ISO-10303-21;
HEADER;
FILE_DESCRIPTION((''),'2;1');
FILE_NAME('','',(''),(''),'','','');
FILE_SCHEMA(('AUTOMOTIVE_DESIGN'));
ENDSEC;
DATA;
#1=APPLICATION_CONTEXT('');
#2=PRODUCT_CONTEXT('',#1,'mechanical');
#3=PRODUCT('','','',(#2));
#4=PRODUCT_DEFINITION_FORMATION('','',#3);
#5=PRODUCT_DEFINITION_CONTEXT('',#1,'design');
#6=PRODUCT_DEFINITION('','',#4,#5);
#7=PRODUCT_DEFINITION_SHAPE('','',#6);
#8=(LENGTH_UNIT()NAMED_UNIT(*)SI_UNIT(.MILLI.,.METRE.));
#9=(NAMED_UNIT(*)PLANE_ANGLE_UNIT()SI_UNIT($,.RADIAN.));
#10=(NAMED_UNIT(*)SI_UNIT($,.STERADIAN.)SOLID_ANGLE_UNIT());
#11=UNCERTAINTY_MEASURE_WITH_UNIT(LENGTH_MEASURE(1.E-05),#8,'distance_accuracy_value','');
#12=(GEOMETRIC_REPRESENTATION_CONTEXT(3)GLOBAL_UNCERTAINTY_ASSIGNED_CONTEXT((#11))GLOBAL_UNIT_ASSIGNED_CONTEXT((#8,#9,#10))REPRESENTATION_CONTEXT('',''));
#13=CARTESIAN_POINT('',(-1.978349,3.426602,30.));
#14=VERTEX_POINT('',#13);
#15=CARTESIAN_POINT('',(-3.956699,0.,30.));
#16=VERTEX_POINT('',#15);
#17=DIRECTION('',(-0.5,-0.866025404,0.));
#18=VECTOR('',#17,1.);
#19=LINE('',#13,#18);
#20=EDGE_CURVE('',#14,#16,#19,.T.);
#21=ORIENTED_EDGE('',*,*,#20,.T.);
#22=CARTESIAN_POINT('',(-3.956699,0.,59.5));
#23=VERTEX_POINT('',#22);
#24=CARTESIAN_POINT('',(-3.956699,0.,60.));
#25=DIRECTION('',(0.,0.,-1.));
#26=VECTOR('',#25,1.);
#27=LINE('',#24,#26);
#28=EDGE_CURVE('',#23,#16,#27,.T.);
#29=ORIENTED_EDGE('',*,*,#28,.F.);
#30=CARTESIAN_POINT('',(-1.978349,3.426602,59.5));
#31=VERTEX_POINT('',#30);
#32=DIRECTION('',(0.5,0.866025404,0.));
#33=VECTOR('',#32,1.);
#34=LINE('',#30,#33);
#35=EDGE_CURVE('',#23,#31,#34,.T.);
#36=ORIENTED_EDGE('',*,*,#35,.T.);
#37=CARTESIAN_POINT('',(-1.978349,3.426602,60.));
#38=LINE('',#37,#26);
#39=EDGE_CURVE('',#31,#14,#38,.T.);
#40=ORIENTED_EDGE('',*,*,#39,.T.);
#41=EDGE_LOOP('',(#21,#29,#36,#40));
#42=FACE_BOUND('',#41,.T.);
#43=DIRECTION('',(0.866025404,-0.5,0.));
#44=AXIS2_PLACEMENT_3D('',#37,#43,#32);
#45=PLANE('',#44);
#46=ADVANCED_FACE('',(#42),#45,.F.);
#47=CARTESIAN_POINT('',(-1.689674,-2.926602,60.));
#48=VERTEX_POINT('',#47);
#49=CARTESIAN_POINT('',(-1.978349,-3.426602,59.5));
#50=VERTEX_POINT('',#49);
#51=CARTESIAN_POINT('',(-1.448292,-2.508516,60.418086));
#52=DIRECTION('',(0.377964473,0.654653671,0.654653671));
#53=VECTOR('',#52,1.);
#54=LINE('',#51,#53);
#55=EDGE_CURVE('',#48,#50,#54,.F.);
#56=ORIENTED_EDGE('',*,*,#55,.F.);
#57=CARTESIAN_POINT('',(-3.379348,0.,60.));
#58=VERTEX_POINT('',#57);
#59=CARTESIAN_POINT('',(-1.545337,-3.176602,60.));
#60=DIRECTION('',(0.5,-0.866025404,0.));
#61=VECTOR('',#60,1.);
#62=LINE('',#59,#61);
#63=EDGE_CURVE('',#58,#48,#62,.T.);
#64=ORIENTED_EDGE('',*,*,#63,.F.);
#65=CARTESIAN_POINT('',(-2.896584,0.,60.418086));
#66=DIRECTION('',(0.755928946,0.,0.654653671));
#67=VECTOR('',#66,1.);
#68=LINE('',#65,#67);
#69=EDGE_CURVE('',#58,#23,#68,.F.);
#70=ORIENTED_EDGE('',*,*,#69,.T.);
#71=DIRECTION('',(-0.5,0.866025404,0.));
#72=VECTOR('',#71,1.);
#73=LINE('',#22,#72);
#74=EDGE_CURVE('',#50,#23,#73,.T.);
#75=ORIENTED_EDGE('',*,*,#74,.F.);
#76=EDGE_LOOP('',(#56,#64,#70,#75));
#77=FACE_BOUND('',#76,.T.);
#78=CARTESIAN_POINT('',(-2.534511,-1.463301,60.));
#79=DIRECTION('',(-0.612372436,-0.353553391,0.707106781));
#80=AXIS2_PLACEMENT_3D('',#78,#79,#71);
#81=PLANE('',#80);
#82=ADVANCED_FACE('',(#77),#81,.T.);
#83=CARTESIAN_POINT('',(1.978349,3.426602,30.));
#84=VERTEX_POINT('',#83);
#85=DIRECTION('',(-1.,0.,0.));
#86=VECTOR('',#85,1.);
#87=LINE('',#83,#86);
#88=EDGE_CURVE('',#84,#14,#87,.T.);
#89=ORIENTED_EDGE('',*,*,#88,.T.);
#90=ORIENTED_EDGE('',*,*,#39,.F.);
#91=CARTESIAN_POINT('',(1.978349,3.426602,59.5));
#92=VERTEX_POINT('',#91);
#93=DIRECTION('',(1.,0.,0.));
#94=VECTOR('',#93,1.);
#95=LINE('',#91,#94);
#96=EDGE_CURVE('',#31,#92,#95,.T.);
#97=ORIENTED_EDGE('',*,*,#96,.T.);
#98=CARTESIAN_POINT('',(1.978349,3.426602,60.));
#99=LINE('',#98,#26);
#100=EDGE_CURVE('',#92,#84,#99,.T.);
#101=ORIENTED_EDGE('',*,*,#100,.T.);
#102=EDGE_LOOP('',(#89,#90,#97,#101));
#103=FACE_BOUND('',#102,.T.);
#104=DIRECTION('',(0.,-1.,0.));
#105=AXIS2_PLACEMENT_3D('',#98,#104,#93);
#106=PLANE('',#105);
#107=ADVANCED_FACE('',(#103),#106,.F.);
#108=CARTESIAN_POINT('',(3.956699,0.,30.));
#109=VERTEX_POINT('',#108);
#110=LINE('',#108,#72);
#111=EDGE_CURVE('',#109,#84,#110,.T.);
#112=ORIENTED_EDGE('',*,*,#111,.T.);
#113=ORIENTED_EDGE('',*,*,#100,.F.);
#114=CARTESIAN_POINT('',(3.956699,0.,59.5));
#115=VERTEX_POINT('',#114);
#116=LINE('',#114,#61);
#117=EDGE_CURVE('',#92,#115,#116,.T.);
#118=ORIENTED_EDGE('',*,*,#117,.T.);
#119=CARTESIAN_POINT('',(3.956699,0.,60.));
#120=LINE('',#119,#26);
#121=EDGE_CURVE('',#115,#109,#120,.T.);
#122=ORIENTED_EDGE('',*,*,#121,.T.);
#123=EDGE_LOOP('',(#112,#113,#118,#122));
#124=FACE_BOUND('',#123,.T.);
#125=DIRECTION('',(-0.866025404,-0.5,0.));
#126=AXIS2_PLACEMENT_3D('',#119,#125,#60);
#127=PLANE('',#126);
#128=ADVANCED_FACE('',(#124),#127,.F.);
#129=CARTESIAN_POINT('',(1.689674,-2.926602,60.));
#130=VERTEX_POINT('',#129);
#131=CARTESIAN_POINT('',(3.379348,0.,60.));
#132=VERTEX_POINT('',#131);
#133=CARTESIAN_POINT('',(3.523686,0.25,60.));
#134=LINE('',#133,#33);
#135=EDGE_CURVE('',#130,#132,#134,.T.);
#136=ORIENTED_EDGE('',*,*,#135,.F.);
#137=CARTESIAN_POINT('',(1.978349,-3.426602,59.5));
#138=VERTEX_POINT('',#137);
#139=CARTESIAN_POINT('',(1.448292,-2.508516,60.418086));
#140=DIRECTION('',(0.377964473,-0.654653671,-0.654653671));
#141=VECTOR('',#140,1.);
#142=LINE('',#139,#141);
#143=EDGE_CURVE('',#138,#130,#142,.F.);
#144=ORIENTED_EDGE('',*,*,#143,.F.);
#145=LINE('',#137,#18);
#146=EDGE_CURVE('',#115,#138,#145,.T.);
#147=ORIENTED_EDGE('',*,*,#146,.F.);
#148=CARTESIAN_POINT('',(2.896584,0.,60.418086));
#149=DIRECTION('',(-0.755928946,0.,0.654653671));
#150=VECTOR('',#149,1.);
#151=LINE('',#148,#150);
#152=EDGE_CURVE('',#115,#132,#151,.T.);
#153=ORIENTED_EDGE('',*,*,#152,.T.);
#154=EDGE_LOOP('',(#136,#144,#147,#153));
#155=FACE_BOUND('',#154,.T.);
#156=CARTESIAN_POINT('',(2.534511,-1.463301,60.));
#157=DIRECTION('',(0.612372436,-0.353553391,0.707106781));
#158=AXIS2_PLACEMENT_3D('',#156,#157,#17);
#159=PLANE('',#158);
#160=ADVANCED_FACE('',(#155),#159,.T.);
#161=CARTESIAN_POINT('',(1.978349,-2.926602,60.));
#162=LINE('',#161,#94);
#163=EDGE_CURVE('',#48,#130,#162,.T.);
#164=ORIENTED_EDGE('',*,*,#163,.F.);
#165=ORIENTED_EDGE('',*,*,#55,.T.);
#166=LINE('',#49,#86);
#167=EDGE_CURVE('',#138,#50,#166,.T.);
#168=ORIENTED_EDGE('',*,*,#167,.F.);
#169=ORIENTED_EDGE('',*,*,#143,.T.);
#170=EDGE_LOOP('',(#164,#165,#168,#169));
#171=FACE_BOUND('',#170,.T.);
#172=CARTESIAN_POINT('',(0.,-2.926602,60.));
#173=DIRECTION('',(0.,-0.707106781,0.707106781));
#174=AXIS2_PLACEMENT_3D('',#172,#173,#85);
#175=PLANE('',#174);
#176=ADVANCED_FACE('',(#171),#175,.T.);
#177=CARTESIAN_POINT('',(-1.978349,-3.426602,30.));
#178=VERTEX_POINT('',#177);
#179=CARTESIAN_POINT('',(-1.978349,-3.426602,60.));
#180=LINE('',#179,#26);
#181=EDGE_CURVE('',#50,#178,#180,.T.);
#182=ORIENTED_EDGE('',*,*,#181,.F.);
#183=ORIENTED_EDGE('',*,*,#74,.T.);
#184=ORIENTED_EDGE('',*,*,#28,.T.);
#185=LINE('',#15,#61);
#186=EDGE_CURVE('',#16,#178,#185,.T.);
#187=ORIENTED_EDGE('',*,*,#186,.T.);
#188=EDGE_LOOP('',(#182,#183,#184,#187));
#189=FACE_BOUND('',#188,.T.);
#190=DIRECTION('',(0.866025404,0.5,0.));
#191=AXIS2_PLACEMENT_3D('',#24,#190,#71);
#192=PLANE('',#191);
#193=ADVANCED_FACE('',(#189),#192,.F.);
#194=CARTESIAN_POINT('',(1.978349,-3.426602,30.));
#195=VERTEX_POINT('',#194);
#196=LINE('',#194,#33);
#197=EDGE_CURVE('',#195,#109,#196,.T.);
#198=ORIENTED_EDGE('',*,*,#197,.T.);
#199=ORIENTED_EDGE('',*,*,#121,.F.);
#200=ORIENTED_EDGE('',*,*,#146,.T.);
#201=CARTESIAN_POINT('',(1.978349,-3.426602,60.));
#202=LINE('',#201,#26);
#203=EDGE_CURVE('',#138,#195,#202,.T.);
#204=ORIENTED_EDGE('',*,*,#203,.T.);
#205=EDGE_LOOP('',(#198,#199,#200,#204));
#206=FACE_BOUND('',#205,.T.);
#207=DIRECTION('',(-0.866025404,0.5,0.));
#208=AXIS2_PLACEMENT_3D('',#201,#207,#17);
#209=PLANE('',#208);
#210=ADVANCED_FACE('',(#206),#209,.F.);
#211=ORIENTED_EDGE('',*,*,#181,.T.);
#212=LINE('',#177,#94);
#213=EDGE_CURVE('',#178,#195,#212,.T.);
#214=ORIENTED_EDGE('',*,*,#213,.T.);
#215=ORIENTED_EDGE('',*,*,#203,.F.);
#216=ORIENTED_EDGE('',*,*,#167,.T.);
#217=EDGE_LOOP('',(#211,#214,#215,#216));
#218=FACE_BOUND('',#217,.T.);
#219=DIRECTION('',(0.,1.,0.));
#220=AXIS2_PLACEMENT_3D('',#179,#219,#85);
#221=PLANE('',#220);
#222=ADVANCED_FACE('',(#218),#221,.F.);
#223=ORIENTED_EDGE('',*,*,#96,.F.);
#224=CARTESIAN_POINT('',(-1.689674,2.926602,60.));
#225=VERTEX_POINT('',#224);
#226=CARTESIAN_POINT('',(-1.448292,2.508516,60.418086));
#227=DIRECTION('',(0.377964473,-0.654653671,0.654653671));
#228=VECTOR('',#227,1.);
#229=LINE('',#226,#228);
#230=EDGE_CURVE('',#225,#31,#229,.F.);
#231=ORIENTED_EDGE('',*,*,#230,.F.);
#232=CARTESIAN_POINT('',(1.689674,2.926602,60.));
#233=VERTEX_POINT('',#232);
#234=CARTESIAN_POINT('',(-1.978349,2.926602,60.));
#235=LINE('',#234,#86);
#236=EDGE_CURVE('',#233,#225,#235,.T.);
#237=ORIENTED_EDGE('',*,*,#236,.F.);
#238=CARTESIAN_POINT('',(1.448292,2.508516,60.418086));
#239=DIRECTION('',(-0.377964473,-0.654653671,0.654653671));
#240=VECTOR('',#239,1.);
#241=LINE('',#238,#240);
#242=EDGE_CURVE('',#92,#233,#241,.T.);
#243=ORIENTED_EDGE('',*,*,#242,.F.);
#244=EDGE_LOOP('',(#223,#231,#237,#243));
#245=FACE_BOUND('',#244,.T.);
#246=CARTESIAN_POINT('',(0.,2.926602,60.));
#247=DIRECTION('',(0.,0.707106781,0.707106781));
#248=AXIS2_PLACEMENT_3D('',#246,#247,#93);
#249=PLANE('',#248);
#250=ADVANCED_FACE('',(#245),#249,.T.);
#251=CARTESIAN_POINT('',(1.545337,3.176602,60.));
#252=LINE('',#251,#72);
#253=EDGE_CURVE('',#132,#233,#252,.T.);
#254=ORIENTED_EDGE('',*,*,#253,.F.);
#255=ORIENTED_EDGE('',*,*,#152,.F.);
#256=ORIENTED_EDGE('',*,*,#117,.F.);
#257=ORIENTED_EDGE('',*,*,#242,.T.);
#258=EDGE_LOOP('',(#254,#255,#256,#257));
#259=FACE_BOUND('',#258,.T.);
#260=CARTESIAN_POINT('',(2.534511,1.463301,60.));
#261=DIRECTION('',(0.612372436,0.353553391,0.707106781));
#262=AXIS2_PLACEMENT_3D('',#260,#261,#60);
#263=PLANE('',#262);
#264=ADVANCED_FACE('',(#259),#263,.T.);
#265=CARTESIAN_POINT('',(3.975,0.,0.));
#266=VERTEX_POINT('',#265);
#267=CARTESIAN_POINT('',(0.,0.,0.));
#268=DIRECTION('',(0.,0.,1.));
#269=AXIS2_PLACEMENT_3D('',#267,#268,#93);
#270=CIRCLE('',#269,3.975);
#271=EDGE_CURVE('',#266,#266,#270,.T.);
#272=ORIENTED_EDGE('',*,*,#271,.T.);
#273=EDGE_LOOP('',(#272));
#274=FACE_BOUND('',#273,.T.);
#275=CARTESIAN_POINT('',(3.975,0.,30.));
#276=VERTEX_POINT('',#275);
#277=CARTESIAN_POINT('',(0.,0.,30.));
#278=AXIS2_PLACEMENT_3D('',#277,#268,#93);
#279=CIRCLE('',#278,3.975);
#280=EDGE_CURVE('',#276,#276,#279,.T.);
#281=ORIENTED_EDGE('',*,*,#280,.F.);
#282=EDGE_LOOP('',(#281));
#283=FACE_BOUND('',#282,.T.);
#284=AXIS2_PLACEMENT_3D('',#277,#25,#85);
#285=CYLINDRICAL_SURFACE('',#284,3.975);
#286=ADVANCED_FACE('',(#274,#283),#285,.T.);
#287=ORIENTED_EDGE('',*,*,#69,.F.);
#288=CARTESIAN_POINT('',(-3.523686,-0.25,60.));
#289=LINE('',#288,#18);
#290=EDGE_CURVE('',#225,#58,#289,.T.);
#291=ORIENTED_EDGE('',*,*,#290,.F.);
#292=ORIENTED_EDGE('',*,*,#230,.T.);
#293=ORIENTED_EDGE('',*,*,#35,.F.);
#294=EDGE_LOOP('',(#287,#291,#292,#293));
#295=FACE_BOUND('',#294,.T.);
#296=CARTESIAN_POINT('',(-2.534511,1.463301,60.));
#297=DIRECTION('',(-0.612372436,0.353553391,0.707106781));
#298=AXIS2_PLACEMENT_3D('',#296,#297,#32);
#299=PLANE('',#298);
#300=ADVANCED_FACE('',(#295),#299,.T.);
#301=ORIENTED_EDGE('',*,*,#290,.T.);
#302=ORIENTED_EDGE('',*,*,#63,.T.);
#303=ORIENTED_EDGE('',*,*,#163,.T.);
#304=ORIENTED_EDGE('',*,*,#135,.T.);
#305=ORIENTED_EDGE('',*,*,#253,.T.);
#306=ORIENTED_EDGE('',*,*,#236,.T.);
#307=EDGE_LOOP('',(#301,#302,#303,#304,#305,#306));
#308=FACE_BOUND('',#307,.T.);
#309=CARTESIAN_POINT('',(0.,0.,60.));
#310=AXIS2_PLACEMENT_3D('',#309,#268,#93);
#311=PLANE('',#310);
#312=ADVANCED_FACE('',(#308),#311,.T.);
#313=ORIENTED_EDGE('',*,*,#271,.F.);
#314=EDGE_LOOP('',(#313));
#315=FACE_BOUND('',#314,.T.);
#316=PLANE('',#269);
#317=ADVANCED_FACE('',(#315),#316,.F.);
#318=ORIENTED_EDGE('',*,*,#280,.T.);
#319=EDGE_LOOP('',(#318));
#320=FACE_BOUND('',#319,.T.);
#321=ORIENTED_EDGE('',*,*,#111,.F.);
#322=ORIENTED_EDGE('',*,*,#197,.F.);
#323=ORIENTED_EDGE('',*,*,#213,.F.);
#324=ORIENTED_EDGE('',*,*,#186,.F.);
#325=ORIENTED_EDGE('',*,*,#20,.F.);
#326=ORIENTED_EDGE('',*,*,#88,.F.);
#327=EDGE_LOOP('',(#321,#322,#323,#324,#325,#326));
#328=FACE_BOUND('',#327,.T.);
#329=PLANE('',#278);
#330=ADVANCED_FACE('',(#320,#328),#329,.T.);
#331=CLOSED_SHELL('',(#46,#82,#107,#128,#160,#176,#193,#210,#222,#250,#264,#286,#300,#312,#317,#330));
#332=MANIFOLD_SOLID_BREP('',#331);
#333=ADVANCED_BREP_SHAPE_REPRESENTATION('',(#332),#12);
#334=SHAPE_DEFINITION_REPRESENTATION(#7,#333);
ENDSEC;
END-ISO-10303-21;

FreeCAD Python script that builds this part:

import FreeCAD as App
import Part
import Sketcher
from FreeCAD import Vector
Q = App.Units.Quantity


def edges_at(feature, points):
    """Names of the edges that pass closest to the given points."""
    edges = feature.Shape.Edges
    near = lambda p: min(range(len(edges)), key=lambda i: edges[i].distToShape(Part.Vertex(*p))[0])
    return sorted({f"Edge{near(p) + 1}" for p in points})

doc = App.newDocument("Part")
body = doc.addObject("PartDesign::Body", "Body")

sketch1 = body.newObject("Sketcher::SketchObject", "Sketch")
sketch1.AttachmentSupport = (doc.getObject("XY_Plane"), [""])
sketch1.MapMode = "FlatFace"
sketch1.addGeometry(Part.Circle(Vector(0, 0, 0), Vector(0, 0, 1), 3.975), False)
sketch1.addConstraint(Sketcher.Constraint("Coincident", 0, 3, -1, 1))
sketch1.addConstraint(Sketcher.Constraint("Diameter", 0, 7.95))
pad1 = body.newObject("PartDesign::Pad", "Pad")
pad1.Profile = sketch1
pad1.Length = 30

sketch2 = body.newObject("Sketcher::SketchObject", "Sketch001")
sketch2.AttachmentSupport = (doc.getObject("XY_Plane"), [""])
sketch2.MapMode = "FlatFace"
sketch2.AttachmentOffset = App.Placement(Vector(0, 0, 30), App.Rotation())
sketch2.addGeometry(Part.LineSegment(Vector(3.956699, 0, 0), Vector(1.978349, 3.426602, 0)), False)
sketch2.addGeometry(Part.LineSegment(Vector(1.978349, 3.426602, 0), Vector(-1.978349, 3.426602, 0)), False)
sketch2.addGeometry(Part.LineSegment(Vector(-1.978349, 3.426602, 0), Vector(-3.956699, 0, 0)), False)
sketch2.addGeometry(Part.LineSegment(Vector(-3.956699, 0, 0), Vector(-1.978349, -3.426602, 0)), False)
sketch2.addGeometry(Part.LineSegment(Vector(-1.978349, -3.426602, 0), Vector(1.978349, -3.426602, 0)), False)
sketch2.addGeometry(Part.LineSegment(Vector(1.978349, -3.426602, 0), Vector(3.956699, 0, 0)), False)
sketch2.addConstraint(Sketcher.Constraint("Coincident", 0, 2, 1, 1))
sketch2.addConstraint(Sketcher.Constraint("Coincident", 1, 2, 2, 1))
sketch2.addConstraint(Sketcher.Constraint("Coincident", 2, 2, 3, 1))
sketch2.addConstraint(Sketcher.Constraint("Coincident", 3, 2, 4, 1))
sketch2.addConstraint(Sketcher.Constraint("Coincident", 4, 2, 5, 1))
sketch2.addConstraint(Sketcher.Constraint("Coincident", 5, 2, 0, 1))
sketch2.addConstraint(Sketcher.Constraint("Horizontal", 1))
sketch2.addConstraint(Sketcher.Constraint("Horizontal", 4))
sketch2.addConstraint(Sketcher.Constraint("Symmetric", 0, 2, 3, 2, -1, 1))
sketch2.addConstraint(Sketcher.Constraint("Symmetric", 2, 2, 5, 2, -1, 1))
sketch2.addConstraint(Sketcher.Constraint("PointOnObject", 2, 2, -1))
sketch2.addConstraint(Sketcher.Constraint("Parallel", 2, 5))
sketch2.addConstraint(Sketcher.Constraint("Vertical", 1, 2, 3, 2))
sketch2.addConstraint(Sketcher.Constraint("Angle", 0, Q("120 deg")))
sketch2.addConstraint(Sketcher.Constraint("DistanceX", 1, 2, 1, 1, 3.956699))
sketch2.addConstraint(Sketcher.Constraint("Distance", 0, 3.956699))
pad2 = body.newObject("PartDesign::Pad", "Pad001")
pad2.Profile = sketch2
pad2.Length = 30
doc.recompute()

chamfer = body.newObject("PartDesign::Chamfer", "Chamfer")
chamfer.Base = (pad2, edges_at(pad2, [
    (2.968, -1.713, 60),
    (2.968, 1.713, 60),
    (0, 3.427, 60),
    (-2.968, 1.713, 60),
    (-2.968, -1.713, 60),
    (0, -3.427, 60),
]))
chamfer.Size = 0.5

doc.recompute()
